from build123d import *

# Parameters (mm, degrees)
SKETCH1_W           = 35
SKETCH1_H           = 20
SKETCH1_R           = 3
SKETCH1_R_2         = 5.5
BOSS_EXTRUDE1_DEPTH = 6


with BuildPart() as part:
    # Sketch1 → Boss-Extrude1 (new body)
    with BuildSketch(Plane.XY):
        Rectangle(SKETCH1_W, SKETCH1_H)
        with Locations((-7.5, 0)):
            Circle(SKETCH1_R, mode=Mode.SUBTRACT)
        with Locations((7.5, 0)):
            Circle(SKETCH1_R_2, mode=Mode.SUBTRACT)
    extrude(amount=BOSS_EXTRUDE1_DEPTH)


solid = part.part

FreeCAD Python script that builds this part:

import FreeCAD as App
import Part
import Sketcher

V = App.Vector


def add_polygon(sketch, points):
    """Adds a closed chain of lines whose ends are joined by coincident constraints."""
    first, n = sketch.GeometryCount, len(points)
    for a, b in zip(points, points[1:] + points[:1]):
        sketch.addGeometry(Part.LineSegment(App.Vector(*a, 0), App.Vector(*b, 0)), False)
    for i in range(n):
        sketch.addConstraint(Sketcher.Constraint("Coincident", first + i, 2, first + (i + 1) % n, 1))

doc = App.newDocument("Part")
params = doc.addObject("Spreadsheet::Sheet", "Params")
for row, (alias, value) in enumerate([
    ("sketch1_diameter", "6 mm"),
    ("sketch1_diameter2", "11 mm"),
    ("sketch1_width", "35 mm"),
    ("sketch1_height", "20 mm"),
    ("pad1_length", "6 mm"),
], start=1):
    params.set(f"A{row}", alias)
    params.set(f"B{row}", "=" + value)
    params.setAlias(f"B{row}", alias)

body = doc.addObject("PartDesign::Body", "Body")

# Sketch on XY plane
sketch1 = doc.addObject("Sketcher::SketchObject", "Sketch")
body.addObject(sketch1)
sketch1.AttachmentSupport = (doc.XY_Plane, [""])
sketch1.MapMode = "FlatFace"
add_polygon(sketch1, [(-17.5, 10), (-17.5, -10), (17.5, -10), (17.5, 10)])  # lines 0-3
sketch1.addGeometry(Part.Circle(V(-7.5, 0, 0), V(0, 0, 1), 3), False)  # 4
sketch1.addGeometry(Part.Circle(V(7.5, 0, 0), V(0, 0, 1), 5.5), False)  # 5
sketch1.addConstraint([
    Sketcher.Constraint("Vertical", 0),
    Sketcher.Constraint("Horizontal", 1),
    Sketcher.Constraint("Vertical", 2),
    Sketcher.Constraint("Horizontal", 3),
    Sketcher.Constraint("Symmetric", 4, 3, 5, 3, -1, 1),
    Sketcher.Constraint("Symmetric", 0, 2, 2, 2, -1, 1),
    Sketcher.Constraint("PointOnObject", 4, 3, -1),
    Sketcher.Constraint("Diameter", 4, 6.0),
    Sketcher.Constraint("Diameter", 5, 11.0),
    Sketcher.Constraint("DistanceX", 1, 1, 1, 2, 35.0),
    Sketcher.Constraint("DistanceY", 0, 2, 0, 1, 20.0),
    Sketcher.Constraint("DistanceX", 4, 3, 5, 3, 15.0),
])
sketch1.setExpression("Constraints[11]", "Params.sketch1_diameter")
sketch1.setExpression("Constraints[12]", "Params.sketch1_diameter2")
sketch1.setExpression("Constraints[13]", "Params.sketch1_width")
sketch1.setExpression("Constraints[14]", "Params.sketch1_height")
pad1 = doc.addObject("PartDesign::Pad", "Pad")
body.addObject(pad1)
pad1.Profile = sketch1
pad1.setExpression("Length", "Params.pad1_length")

doc.recompute()
